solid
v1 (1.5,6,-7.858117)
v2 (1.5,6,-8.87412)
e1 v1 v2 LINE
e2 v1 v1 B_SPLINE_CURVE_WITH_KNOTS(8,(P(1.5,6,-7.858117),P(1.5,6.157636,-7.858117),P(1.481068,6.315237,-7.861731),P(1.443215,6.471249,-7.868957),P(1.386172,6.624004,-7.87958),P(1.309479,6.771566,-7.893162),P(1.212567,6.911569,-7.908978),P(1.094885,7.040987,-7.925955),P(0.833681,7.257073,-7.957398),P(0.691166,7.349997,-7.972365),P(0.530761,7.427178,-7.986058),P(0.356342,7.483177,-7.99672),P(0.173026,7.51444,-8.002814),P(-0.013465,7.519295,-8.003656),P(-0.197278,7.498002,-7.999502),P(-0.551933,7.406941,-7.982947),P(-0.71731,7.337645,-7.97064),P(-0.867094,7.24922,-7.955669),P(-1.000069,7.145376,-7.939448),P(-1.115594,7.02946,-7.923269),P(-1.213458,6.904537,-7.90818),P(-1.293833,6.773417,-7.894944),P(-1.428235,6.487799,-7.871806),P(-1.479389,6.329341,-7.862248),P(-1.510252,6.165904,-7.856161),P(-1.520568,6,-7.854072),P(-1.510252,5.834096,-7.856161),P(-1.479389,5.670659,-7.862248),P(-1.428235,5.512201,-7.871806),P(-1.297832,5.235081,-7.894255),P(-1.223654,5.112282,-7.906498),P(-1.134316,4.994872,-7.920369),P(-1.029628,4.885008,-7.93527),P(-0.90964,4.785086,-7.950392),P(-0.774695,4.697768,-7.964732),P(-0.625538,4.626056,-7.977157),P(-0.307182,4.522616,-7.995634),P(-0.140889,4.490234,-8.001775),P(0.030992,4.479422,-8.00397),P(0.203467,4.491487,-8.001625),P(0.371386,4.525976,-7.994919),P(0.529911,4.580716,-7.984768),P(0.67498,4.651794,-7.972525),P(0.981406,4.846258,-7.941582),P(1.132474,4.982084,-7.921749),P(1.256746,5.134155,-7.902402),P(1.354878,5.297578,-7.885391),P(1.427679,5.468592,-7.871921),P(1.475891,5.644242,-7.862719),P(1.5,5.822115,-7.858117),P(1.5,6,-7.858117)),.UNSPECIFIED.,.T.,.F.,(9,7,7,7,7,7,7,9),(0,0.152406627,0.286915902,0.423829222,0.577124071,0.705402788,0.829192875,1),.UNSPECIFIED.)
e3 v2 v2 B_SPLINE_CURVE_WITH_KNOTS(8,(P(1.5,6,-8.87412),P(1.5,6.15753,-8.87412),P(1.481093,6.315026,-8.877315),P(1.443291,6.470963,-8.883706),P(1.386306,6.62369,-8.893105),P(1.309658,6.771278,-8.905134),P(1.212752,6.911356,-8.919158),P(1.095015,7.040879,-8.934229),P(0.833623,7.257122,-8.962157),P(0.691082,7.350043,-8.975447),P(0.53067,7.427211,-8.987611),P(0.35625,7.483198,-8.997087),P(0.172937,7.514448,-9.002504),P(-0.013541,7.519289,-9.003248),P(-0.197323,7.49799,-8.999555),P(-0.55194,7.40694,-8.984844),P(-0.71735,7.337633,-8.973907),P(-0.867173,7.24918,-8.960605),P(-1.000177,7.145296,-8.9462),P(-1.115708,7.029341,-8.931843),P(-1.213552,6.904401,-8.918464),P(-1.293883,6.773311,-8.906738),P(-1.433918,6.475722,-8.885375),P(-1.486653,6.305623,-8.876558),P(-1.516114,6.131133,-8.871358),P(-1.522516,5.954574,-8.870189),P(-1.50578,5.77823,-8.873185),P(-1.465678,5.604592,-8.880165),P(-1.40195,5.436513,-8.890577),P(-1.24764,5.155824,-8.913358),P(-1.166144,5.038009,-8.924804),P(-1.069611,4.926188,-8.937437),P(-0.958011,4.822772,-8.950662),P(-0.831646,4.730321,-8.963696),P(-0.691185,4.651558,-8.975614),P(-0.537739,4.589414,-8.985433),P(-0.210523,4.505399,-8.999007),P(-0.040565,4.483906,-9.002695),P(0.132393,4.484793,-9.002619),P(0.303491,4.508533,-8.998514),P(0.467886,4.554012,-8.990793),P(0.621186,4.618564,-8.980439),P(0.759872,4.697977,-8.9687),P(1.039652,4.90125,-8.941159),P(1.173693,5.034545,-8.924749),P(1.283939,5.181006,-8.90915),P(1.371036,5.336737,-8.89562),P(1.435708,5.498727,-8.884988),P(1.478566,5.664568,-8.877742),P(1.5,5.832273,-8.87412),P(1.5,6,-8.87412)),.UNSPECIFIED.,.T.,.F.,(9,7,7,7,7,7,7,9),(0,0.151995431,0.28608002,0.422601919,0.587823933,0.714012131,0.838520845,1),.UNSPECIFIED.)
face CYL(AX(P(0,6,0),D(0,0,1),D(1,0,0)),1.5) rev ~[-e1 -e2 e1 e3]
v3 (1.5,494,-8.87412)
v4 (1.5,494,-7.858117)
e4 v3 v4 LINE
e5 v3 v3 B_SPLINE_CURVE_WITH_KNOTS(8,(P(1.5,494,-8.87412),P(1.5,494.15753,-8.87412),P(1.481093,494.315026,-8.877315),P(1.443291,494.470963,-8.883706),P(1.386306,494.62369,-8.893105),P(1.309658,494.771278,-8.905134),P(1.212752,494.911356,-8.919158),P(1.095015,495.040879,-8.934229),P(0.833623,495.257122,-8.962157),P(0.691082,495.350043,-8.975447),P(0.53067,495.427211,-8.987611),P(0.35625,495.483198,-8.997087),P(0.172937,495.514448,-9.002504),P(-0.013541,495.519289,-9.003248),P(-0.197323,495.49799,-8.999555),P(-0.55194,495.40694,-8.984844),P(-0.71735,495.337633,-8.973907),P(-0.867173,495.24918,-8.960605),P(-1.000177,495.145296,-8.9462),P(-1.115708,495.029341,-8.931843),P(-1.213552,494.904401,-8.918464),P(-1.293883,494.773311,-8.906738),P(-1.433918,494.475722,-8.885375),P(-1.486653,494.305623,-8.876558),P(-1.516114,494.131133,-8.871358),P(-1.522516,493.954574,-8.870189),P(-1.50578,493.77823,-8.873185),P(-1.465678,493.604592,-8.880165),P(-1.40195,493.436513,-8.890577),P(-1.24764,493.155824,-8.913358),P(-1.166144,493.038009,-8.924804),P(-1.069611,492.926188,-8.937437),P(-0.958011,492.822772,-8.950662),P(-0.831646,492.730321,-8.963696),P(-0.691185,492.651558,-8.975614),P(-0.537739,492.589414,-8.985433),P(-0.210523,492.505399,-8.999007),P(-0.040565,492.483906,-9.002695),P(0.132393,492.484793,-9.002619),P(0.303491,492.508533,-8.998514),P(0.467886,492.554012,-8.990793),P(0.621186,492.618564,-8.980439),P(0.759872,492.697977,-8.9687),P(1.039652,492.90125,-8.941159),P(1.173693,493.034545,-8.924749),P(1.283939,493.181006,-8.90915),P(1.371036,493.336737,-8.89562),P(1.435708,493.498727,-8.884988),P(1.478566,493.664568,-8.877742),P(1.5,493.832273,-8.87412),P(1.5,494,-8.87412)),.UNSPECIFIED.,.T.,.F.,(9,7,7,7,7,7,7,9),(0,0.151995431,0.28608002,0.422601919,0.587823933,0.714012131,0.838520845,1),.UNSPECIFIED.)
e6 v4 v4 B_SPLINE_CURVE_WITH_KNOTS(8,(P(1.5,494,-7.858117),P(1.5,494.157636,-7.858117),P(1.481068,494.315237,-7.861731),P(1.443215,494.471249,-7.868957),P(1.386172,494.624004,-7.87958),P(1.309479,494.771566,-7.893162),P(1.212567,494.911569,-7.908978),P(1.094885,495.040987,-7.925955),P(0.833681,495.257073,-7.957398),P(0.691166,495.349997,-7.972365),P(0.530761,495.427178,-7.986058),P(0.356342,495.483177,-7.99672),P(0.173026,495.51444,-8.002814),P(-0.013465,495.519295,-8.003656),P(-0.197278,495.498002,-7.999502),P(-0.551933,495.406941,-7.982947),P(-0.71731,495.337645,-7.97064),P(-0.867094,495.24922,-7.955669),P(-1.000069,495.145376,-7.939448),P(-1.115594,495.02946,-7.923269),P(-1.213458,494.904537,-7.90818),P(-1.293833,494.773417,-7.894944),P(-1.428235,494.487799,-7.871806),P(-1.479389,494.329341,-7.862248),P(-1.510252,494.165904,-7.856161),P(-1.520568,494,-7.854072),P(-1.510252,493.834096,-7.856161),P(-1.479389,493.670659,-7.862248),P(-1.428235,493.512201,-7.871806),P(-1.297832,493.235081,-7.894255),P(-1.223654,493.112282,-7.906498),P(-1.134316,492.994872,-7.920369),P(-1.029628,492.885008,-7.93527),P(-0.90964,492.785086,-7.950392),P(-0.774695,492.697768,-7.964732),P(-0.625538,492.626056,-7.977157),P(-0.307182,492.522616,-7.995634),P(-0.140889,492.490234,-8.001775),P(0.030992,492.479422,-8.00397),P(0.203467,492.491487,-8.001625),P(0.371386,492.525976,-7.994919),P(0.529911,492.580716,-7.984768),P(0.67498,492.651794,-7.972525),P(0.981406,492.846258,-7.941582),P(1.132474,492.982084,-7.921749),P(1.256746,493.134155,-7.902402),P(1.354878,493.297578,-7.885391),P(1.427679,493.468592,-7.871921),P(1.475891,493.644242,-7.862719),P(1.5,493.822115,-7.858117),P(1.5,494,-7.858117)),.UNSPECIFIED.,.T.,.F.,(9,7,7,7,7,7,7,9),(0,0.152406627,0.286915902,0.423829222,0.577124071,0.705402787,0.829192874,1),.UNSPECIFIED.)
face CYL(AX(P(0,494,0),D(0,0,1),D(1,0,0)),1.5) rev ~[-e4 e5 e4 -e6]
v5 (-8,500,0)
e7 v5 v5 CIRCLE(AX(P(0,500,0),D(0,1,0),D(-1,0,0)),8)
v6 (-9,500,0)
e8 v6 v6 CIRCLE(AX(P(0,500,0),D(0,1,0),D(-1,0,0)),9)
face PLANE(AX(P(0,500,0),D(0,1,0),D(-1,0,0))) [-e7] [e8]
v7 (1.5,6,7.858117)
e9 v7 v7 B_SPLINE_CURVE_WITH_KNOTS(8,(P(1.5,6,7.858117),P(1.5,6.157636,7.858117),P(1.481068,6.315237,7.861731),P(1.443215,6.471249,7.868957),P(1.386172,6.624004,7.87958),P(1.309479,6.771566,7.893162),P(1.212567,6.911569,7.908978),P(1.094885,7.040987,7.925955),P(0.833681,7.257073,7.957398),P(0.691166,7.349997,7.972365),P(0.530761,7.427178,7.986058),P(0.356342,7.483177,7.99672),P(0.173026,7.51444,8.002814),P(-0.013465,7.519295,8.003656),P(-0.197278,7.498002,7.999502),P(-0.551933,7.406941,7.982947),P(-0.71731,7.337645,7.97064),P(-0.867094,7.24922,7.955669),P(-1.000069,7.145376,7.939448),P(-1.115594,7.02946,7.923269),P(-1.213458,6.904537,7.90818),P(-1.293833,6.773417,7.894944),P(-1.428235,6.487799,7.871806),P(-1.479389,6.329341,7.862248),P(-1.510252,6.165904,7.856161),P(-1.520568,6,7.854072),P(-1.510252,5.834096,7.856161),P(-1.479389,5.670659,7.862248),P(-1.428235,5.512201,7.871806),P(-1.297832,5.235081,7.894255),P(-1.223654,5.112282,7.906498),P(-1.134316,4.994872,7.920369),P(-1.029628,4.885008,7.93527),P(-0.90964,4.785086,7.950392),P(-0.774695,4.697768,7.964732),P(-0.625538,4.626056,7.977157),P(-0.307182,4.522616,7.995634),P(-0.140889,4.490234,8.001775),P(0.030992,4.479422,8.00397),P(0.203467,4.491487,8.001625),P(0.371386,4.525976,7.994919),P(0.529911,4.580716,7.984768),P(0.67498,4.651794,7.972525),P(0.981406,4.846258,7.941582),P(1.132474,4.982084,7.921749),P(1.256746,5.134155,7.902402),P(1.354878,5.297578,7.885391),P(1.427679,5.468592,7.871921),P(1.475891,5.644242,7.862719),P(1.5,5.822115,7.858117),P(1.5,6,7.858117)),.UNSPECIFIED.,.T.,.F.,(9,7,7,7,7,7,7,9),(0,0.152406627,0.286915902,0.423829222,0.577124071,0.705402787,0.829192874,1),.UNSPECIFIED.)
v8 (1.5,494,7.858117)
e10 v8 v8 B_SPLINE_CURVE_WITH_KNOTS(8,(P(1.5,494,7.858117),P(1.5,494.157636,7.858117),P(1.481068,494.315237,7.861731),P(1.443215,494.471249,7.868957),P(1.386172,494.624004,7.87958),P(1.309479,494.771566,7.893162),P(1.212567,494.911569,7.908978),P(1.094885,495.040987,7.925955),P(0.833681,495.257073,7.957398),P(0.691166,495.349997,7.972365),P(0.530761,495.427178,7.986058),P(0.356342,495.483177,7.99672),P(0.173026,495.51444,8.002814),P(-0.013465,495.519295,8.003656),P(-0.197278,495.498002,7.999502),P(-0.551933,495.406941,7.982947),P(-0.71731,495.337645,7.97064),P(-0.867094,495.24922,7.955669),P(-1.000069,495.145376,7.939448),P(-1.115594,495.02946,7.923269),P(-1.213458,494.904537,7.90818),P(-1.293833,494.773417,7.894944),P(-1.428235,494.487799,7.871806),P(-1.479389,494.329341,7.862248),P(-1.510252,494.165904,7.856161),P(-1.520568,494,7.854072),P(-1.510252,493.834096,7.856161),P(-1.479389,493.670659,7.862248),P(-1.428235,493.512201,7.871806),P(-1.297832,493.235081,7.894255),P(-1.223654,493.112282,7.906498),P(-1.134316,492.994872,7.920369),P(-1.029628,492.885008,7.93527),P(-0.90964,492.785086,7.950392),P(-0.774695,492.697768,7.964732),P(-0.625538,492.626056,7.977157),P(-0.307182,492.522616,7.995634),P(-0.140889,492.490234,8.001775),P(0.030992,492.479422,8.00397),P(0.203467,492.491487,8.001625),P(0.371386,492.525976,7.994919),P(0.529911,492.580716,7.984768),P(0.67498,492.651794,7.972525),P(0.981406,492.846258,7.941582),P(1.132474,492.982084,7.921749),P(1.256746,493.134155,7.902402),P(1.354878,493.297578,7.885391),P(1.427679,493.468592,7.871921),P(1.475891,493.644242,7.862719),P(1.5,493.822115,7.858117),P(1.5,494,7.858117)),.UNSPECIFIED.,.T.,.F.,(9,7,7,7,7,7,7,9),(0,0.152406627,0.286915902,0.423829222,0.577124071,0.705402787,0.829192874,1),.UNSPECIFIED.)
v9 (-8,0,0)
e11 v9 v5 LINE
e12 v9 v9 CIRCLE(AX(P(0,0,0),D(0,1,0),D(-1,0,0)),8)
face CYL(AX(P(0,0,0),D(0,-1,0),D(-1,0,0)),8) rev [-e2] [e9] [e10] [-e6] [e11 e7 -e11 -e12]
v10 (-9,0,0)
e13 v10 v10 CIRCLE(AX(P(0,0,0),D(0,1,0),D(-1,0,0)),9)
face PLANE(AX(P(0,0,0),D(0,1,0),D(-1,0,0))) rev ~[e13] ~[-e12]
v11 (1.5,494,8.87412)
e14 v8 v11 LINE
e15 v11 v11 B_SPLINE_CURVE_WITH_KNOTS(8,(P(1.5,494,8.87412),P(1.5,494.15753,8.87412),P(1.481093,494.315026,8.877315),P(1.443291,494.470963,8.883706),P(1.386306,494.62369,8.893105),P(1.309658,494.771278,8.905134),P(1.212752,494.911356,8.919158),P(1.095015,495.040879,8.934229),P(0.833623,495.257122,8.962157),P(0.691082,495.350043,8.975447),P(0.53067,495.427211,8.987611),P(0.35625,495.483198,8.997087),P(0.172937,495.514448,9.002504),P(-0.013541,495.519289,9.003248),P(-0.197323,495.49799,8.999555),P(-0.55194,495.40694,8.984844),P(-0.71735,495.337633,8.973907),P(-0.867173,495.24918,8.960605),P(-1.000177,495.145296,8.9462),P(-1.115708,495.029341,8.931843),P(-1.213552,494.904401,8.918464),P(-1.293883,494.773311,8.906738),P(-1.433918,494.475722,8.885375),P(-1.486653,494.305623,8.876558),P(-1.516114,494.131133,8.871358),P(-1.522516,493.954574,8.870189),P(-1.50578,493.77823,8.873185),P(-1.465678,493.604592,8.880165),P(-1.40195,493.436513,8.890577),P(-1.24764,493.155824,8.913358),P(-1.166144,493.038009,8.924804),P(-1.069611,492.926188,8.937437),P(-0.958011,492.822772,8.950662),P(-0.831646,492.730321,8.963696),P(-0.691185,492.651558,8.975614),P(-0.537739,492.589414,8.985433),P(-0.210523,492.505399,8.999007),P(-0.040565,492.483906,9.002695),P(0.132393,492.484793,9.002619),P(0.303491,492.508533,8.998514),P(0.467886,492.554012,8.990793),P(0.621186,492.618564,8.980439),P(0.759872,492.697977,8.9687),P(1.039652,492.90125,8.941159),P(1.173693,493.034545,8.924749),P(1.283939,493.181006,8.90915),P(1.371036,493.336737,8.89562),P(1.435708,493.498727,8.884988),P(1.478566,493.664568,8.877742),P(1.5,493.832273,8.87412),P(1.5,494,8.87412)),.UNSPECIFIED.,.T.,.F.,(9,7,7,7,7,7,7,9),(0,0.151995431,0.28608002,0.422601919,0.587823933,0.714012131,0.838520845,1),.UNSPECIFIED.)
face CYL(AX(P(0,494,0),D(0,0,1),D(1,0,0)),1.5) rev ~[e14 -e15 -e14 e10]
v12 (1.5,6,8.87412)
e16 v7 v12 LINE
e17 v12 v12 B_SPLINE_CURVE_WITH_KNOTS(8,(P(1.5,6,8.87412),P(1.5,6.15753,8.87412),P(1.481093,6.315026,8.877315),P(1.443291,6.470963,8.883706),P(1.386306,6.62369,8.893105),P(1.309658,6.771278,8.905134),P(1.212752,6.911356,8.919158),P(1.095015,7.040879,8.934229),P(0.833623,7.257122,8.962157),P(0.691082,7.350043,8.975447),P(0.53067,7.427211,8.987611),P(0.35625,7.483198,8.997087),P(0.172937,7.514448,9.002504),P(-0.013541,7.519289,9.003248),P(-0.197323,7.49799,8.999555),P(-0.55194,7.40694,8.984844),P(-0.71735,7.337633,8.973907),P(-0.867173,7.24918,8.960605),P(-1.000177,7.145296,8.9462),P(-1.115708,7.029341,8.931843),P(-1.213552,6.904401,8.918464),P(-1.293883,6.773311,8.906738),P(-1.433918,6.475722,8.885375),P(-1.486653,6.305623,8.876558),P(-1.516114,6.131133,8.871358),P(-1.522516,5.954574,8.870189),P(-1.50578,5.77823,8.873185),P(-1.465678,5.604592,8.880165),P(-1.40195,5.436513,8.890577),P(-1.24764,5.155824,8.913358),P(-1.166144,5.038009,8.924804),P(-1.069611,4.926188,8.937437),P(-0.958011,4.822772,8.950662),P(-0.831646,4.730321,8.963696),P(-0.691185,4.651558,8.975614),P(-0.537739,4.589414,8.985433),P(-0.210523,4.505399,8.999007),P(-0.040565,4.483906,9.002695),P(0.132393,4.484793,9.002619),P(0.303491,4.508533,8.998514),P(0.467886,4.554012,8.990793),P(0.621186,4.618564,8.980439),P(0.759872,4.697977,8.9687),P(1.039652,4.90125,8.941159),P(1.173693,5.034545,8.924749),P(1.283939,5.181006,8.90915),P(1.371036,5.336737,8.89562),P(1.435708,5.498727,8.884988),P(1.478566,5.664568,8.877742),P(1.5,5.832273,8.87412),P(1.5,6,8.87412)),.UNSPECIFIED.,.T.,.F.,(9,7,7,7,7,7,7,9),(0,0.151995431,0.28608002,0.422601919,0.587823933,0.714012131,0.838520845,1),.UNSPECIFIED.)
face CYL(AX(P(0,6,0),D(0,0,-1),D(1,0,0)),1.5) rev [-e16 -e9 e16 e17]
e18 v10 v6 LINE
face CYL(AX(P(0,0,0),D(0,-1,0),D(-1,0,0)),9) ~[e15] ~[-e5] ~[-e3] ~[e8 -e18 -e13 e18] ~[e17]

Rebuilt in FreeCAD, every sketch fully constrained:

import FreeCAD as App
import Part
import Sketcher
Q = App.Units.Quantity

doc = App.newDocument("Part")
body = doc.addObject("PartDesign::Body", "Body")

sketch1 = doc.addObject("Sketcher::SketchObject", "Sketch")
body.addObject(sketch1)
sketch1.AttachmentSupport = (doc.XZ_Plane, [""])
sketch1.MapMode = "FlatFace"
sketch1.addGeometry([
    Part.Circle(App.Vector(0, 0, 0), App.Vector(0, 0, 1), 9),
    Part.Circle(App.Vector(0, 0, 0), App.Vector(0, 0, 1), 8),
], False)
sketch1.addConstraint([
    Sketcher.Constraint("Coincident", 0, 3, -1, 1),
    Sketcher.Constraint("Coincident", 1, 3, -1, 1),
    Sketcher.Constraint("Diameter", 0, Q("18 mm")),
    Sketcher.Constraint("Diameter", 1, Q("16 mm")),
])
pad1 = doc.addObject("PartDesign::Pad", "Pad")
body.addObject(pad1)
pad1.Profile = sketch1
pad1.Length = 500
pad1.Reversed = True

sketch2 = doc.addObject("Sketcher::SketchObject", "Sketch001")
body.addObject(sketch2)
sketch2.AttachmentSupport = (doc.XY_Plane, [""])
sketch2.MapMode = "FlatFace"
sketch2.addGeometry([
    Part.Circle(App.Vector(0, 6, 0), App.Vector(0, 0, 1), 1.5),
    Part.Circle(App.Vector(0, 494, 0), App.Vector(0, 0, 1), 1.5),
], False)
sketch2.addConstraint([
    Sketcher.Constraint("Equal", 0, 1),
    Sketcher.Constraint("PointOnObject", 0, 3, -2),
    Sketcher.Constraint("PointOnObject", 1, 3, -2),
    Sketcher.Constraint("Diameter", 0, Q("3 mm")),
    Sketcher.Constraint("DistanceY", -1, 1, 0, 3, Q("6 mm")),
    Sketcher.Constraint("DistanceY", -1, 1, 1, 3, Q("494 mm")),
])
pocket1 = doc.addObject("PartDesign::Pocket", "Pocket")
body.addObject(pocket1)
pocket1.Profile = sketch2
pocket1.Type = "ThroughAll"
pocket1.Midplane = True

doc.recompute()
